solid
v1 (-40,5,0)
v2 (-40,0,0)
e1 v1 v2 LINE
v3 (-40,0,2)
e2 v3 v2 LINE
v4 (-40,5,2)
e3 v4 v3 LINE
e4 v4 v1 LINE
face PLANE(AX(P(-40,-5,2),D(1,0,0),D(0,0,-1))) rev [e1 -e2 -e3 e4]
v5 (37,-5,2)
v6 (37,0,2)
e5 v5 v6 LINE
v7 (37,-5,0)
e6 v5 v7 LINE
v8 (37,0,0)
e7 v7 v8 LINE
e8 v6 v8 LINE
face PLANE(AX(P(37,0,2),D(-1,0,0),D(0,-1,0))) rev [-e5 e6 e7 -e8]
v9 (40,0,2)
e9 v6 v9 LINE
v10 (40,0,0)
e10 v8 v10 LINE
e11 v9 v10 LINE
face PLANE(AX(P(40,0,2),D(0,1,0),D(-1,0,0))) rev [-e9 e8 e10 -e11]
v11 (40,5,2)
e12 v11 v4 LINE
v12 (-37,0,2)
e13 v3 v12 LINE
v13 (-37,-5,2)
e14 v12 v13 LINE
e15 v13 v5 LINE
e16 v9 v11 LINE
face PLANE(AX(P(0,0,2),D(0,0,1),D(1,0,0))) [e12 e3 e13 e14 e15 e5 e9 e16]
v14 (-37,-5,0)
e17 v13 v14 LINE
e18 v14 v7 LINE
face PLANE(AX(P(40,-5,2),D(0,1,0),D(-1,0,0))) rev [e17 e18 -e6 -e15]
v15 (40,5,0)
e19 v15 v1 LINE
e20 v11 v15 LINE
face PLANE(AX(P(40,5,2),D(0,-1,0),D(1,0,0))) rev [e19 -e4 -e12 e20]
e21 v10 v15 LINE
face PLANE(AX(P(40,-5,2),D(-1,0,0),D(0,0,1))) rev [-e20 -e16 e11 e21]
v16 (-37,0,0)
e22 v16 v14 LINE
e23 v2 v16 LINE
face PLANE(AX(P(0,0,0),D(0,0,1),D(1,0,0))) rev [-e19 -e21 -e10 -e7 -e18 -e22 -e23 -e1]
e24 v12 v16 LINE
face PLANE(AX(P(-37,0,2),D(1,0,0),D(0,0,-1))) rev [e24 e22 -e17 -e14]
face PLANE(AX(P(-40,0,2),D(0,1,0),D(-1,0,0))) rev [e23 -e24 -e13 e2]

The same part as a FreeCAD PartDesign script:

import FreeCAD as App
import Part
import Sketcher
from FreeCAD import Vector
Q = App.Units.Quantity

doc = App.newDocument("Part")
body = doc.addObject("PartDesign::Body", "Body")

sketch1 = body.newObject("Sketcher::SketchObject", "Sketch")
sketch1.AttachmentSupport = (doc.getObject("XY_Plane"), [""])
sketch1.MapMode = "FlatFace"
sketch1.addGeometry(Part.LineSegment(Vector(-40, 5, 0), Vector(-40, -5, 0)), False)
sketch1.addGeometry(Part.LineSegment(Vector(-40, -5, 0), Vector(40, -5, 0)), False)
sketch1.addGeometry(Part.LineSegment(Vector(40, -5, 0), Vector(40, 5, 0)), False)
sketch1.addGeometry(Part.LineSegment(Vector(40, 5, 0), Vector(-40, 5, 0)), False)
sketch1.addConstraint(Sketcher.Constraint("Coincident", 0, 2, 1, 1))
sketch1.addConstraint(Sketcher.Constraint("Coincident", 1, 2, 2, 1))
sketch1.addConstraint(Sketcher.Constraint("Coincident", 2, 2, 3, 1))
sketch1.addConstraint(Sketcher.Constraint("Coincident", 3, 2, 0, 1))
sketch1.addConstraint(Sketcher.Constraint("Vertical", 0))
sketch1.addConstraint(Sketcher.Constraint("Horizontal", 1))
sketch1.addConstraint(Sketcher.Constraint("Vertical", 2))
sketch1.addConstraint(Sketcher.Constraint("Horizontal", 3))
sketch1.addConstraint(Sketcher.Constraint("Symmetric", 0, 2, 2, 2, -1, 1))
sketch1.addConstraint(Sketcher.Constraint("DistanceX", 1, 1, 1, 2, Q("80 mm")))
sketch1.addConstraint(Sketcher.Constraint("DistanceY", 0, 2, 0, 1, Q("10 mm")))
pad1 = body.newObject("PartDesign::Pad", "Pad")
pad1.Profile = sketch1
pad1.Length = 2

sketch2 = body.newObject("Sketcher::SketchObject", "Sketch001")
sketch2.AttachmentSupport = (doc.getObject("XY_Plane"), [""])
sketch2.MapMode = "FlatFace"
sketch2.addGeometry(Part.LineSegment(Vector(-37, 0, 0), Vector(-37, -5, 0)), False)
sketch2.addGeometry(Part.LineSegment(Vector(-37, -5, 0), Vector(-40, -5, 0)), False)
sketch2.addGeometry(Part.LineSegment(Vector(-40, -5, 0), Vector(-40, 0, 0)), False)
sketch2.addGeometry(Part.LineSegment(Vector(-40, 0, 0), Vector(-37, 0, 0)), False)
sketch2.addGeometry(Part.LineSegment(Vector(40, 0, 0), Vector(40, -5, 0)), False)
sketch2.addGeometry(Part.LineSegment(Vector(40, -5, 0), Vector(37, -5, 0)), False)
sketch2.addGeometry(Part.LineSegment(Vector(37, -5, 0), Vector(37, 0, 0)), False)
sketch2.addGeometry(Part.LineSegment(Vector(37, 0, 0), Vector(40, 0, 0)), False)
sketch2.addConstraint(Sketcher.Constraint("Coincident", 0, 2, 1, 1))
sketch2.addConstraint(Sketcher.Constraint("Coincident", 1, 2, 2, 1))
sketch2.addConstraint(Sketcher.Constraint("Coincident", 2, 2, 3, 1))
sketch2.addConstraint(Sketcher.Constraint("Coincident", 3, 2, 0, 1))
sketch2.addConstraint(Sketcher.Constraint("Coincident", 4, 2, 5, 1))
sketch2.addConstraint(Sketcher.Constraint("Coincident", 5, 2, 6, 1))
sketch2.addConstraint(Sketcher.Constraint("Coincident", 6, 2, 7, 1))
sketch2.addConstraint(Sketcher.Constraint("Coincident", 7, 2, 4, 1))
sketch2.addConstraint(Sketcher.Constraint("Vertical", 0))
sketch2.addConstraint(Sketcher.Constraint("Horizontal", 1))
sketch2.addConstraint(Sketcher.Constraint("Vertical", 2))
sketch2.addConstraint(Sketcher.Constraint("Horizontal", 3))
sketch2.addConstraint(Sketcher.Constraint("Vertical", 4))
sketch2.addConstraint(Sketcher.Constraint("Horizontal", 5))
sketch2.addConstraint(Sketcher.Constraint("Vertical", 6))
sketch2.addConstraint(Sketcher.Constraint("Horizontal", 7))
sketch2.addConstraint(Sketcher.Constraint("Symmetric", 3, 2, 6, 2, -1, 1))
sketch2.addConstraint(Sketcher.Constraint("Symmetric", 1, 2, 4, 2, -2))
sketch2.addConstraint(Sketcher.Constraint("PointOnObject", 2, 2, -1))
sketch2.addConstraint(Sketcher.Constraint("DistanceX", 1, 2, 1, 1, Q("3 mm")))
sketch2.addConstraint(Sketcher.Constraint("DistanceY", 0, 2, 0, 1, Q("5 mm")))
sketch2.addConstraint(Sketcher.Constraint("DistanceX", 0, 2, -1, 1, Q("37 mm")))
pocket1 = body.newObject("PartDesign::Pocket", "Pocket")
pocket1.Profile = sketch2
pocket1.Type = "ThroughAll"
pocket1.Reversed = True

doc.recompute()
